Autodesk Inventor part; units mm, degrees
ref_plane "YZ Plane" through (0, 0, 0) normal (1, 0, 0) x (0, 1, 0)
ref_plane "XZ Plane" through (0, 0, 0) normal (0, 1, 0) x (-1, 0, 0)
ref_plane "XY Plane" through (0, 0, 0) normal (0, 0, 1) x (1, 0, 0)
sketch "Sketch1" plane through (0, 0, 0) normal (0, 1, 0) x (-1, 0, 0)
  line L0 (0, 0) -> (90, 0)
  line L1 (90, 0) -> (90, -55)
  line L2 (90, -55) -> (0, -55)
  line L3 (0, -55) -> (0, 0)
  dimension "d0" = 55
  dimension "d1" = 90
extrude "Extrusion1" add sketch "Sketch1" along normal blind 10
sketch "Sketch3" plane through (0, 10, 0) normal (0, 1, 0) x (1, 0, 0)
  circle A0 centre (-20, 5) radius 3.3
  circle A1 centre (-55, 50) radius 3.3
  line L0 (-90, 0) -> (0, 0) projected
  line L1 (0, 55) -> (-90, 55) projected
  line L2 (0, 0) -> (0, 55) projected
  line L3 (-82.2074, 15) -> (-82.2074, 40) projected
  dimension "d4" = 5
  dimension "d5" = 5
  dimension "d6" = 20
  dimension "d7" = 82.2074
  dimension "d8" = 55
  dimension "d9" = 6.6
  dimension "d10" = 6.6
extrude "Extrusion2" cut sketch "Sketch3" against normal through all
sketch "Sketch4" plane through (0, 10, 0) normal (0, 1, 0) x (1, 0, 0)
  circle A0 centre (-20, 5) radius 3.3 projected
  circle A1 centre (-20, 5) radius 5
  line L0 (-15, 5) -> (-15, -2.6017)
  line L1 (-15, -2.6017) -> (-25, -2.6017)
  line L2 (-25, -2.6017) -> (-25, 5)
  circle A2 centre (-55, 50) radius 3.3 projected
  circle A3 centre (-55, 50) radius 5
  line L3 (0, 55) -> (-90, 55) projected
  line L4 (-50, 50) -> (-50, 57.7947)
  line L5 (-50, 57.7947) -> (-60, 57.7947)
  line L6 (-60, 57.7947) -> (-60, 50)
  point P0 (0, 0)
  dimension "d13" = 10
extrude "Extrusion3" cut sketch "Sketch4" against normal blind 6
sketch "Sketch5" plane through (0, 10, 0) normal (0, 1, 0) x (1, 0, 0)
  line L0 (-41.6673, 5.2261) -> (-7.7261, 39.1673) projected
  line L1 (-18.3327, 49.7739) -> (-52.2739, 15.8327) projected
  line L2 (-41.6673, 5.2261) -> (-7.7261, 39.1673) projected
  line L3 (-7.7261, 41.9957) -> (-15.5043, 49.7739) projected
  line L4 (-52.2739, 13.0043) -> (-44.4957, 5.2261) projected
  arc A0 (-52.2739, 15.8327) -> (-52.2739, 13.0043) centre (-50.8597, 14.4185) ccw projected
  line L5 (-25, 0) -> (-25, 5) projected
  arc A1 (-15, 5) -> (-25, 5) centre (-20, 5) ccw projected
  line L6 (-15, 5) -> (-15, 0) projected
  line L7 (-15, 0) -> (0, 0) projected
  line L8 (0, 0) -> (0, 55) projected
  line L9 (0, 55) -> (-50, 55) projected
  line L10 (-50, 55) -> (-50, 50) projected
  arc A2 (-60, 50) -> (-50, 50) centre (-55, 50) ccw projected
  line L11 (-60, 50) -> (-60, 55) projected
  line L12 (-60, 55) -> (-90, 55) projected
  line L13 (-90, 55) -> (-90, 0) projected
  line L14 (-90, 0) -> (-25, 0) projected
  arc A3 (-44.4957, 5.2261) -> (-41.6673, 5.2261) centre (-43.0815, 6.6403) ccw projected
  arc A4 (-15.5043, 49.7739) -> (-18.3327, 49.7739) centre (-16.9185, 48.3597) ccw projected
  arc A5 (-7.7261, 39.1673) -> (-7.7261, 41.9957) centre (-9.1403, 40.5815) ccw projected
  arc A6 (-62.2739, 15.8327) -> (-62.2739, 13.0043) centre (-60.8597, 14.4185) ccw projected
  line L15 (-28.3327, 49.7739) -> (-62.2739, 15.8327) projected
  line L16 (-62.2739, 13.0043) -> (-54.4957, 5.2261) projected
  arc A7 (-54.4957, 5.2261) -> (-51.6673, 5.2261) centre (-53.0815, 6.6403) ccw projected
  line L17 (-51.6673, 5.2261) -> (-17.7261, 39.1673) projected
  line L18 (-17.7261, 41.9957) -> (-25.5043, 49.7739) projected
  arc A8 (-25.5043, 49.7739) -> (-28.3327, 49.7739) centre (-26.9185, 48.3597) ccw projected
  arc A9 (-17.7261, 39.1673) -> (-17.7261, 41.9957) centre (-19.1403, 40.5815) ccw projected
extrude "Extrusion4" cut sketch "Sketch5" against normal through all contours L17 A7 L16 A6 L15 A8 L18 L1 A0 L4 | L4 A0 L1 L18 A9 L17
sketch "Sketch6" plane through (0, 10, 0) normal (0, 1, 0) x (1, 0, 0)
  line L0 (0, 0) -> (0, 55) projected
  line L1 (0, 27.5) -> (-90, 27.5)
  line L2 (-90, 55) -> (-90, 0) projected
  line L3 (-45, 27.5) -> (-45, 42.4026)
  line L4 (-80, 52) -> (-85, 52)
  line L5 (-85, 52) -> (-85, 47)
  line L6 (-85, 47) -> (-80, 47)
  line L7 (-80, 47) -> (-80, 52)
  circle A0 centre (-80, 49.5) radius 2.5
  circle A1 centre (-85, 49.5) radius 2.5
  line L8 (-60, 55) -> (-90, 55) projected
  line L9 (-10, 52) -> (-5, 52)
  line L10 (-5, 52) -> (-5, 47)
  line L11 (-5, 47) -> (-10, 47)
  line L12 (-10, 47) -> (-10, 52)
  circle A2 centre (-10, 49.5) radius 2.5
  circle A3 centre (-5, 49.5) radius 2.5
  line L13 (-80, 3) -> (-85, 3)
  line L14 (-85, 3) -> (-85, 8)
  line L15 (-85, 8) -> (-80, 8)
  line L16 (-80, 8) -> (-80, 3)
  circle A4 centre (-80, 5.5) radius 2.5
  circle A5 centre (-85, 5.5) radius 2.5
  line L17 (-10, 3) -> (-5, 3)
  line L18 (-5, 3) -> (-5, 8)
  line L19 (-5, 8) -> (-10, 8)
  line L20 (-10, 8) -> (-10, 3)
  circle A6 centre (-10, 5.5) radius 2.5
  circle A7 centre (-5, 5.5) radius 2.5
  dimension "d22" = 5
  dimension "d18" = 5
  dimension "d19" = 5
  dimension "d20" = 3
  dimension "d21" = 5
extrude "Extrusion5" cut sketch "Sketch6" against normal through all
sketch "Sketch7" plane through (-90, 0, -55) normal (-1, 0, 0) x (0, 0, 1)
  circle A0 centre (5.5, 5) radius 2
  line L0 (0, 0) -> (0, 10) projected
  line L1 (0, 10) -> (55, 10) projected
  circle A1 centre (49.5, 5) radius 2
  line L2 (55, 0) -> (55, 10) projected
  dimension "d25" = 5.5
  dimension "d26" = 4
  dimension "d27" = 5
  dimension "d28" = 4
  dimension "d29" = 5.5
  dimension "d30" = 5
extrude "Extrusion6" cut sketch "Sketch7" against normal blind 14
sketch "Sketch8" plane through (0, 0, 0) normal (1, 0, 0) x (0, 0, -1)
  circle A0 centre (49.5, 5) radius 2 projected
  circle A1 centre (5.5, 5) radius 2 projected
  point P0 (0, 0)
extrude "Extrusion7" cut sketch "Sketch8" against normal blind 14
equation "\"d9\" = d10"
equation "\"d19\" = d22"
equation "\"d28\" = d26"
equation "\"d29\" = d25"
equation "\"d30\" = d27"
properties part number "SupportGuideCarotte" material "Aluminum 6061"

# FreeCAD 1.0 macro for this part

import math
import FreeCAD as App
import Part
import Sketcher
from FreeCAD import Vector
Q = App.Units.Quantity

doc = App.newDocument("Part")
body = doc.addObject("PartDesign::Body", "Body")

# Sketch on XZ plane
sketch1 = doc.addObject("Sketcher::SketchObject", "Sketch")
body.addObject(sketch1)
sketch1.AttachmentSupport = (doc.XZ_Plane, [""])
sketch1.MapMode = "FlatFace"
sketch1.addGeometry(Part.LineSegment(Vector(-90, 0, 0), Vector(0, 0, 0)), False)
sketch1.addGeometry(Part.LineSegment(Vector(0, 0, 0), Vector(0, -55, 0)), False)
sketch1.addGeometry(Part.LineSegment(Vector(0, -55, 0), Vector(-90, -55, 0)), False)
sketch1.addGeometry(Part.LineSegment(Vector(-90, -55, 0), Vector(-90, 0, 0)), False)
sketch1.addConstraint(Sketcher.Constraint("Coincident", 0, 2, 1, 1))
sketch1.addConstraint(Sketcher.Constraint("Coincident", 1, 2, 2, 1))
sketch1.addConstraint(Sketcher.Constraint("Coincident", 2, 2, 3, 1))
sketch1.addConstraint(Sketcher.Constraint("Coincident", 3, 2, 0, 1))
sketch1.addConstraint(Sketcher.Constraint("Horizontal", 0))
sketch1.addConstraint(Sketcher.Constraint("Vertical", 1))
sketch1.addConstraint(Sketcher.Constraint("Horizontal", 2))
sketch1.addConstraint(Sketcher.Constraint("Vertical", 3))
sketch1.addConstraint(Sketcher.Constraint("Coincident", 0, 2, -1, 1))
sketch1.addConstraint(Sketcher.Constraint("DistanceX", 0, 1, 0, 2, Q("90 mm")))
sketch1.addConstraint(Sketcher.Constraint("DistanceY", 1, 2, 1, 1, Q("55 mm")))
pad1 = doc.addObject("PartDesign::Pad", "Pad")
body.addObject(pad1)
pad1.Profile = sketch1
pad1.Length = 10
pad1.Reversed = True

# Sketch on XZ plane
sketch2 = doc.addObject("Sketcher::SketchObject", "Sketch001")
body.addObject(sketch2)
sketch2.AttachmentSupport = (doc.XZ_Plane, [""])
sketch2.MapMode = "FlatFace"
sketch2.AttachmentOffset = App.Placement(Vector(0, 0, -10), App.Rotation())
sketch2.addGeometry(Part.Circle(Vector(-20, -5, 0), Vector(0, 0, 1), 3.3), False)
sketch2.addGeometry(Part.Circle(Vector(-55, -50, 0), Vector(0, 0, 1), 3.3), False)
sketch2.addConstraint(Sketcher.Constraint("Equal", 0, 1))
sketch2.addConstraint(Sketcher.Constraint("Diameter", 0, Q("6.6 mm")))
sketch2.addConstraint(Sketcher.Constraint("DistanceX", 0, 3, -1, 1, Q("20 mm")))
sketch2.addConstraint(Sketcher.Constraint("DistanceY", 0, 3, -1, 1, Q("5 mm")))
sketch2.addConstraint(Sketcher.Constraint("DistanceX", 1, 3, -1, 1, Q("55 mm")))
sketch2.addConstraint(Sketcher.Constraint("DistanceY", 1, 3, -1, 1, Q("50 mm")))
pocket1 = doc.addObject("PartDesign::Pocket", "Pocket")
body.addObject(pocket1)
pocket1.Profile = sketch2
pocket1.Type = "ThroughAll"
pocket1.Reversed = True

# Sketch on XZ plane
sketch3 = doc.addObject("Sketcher::SketchObject", "Sketch002")
body.addObject(sketch3)
sketch3.AttachmentSupport = (doc.XZ_Plane, [""])
sketch3.MapMode = "FlatFace"
sketch3.AttachmentOffset = App.Placement(Vector(0, 0, -10), App.Rotation())
sketch3.addGeometry(Part.ArcOfCircle(Part.Circle(Vector(-20, -5, 0), Vector(0, 0, 1), 5), math.radians(180), math.radians(360)), False)
sketch3.addGeometry(Part.LineSegment(Vector(-25, -5, 0), Vector(-25, 2.6017, 0)), False)
sketch3.addGeometry(Part.LineSegment(Vector(-25, 2.6017, 0), Vector(-15, 2.6017, 0)), False)
sketch3.addGeometry(Part.LineSegment(Vector(-15, 2.6017, 0), Vector(-15, -5, 0)), False)
sketch3.addGeometry(Part.Circle(Vector(-20, -5, 0), Vector(0, 0, 1), 3.3), False)
sketch3.addGeometry(Part.ArcOfCircle(Part.Circle(Vector(-55, -50, 0), Vector(0, 0, 1), 5), math.radians(0), math.radians(180)), False)
sketch3.addGeometry(Part.LineSegment(Vector(-50, -50, 0), Vector(-50, -57.7947, 0)), False)
sketch3.addGeometry(Part.LineSegment(Vector(-50, -57.7947, 0), Vector(-60, -57.7947, 0)), False)
sketch3.addGeometry(Part.LineSegment(Vector(-60, -57.7947, 0), Vector(-60, -50, 0)), False)
sketch3.addGeometry(Part.Circle(Vector(-55, -50, 0), Vector(0, 0, 1), 3.3), False)
sketch3.addConstraint(Sketcher.Constraint("Tangent", 0, 1, 1, 1))
sketch3.addConstraint(Sketcher.Constraint("Coincident", 1, 2, 2, 1))
sketch3.addConstraint(Sketcher.Constraint("Coincident", 2, 2, 3, 1))
sketch3.addConstraint(Sketcher.Constraint("Tangent", 3, 2, 0, 2))
sketch3.addConstraint(Sketcher.Constraint("Tangent", 5, 1, 6, 1))
sketch3.addConstraint(Sketcher.Constraint("Coincident", 6, 2, 7, 1))
sketch3.addConstraint(Sketcher.Constraint("Coincident", 7, 2, 8, 1))
sketch3.addConstraint(Sketcher.Constraint("Tangent", 8, 2, 5, 2))
sketch3.addConstraint(Sketcher.Constraint("Vertical", 1))
sketch3.addConstraint(Sketcher.Constraint("Horizontal", 2))
sketch3.addConstraint(Sketcher.Constraint("Vertical", 3))
sketch3.addConstraint(Sketcher.Constraint("Vertical", 6))
sketch3.addConstraint(Sketcher.Constraint("Horizontal", 7))
sketch3.addConstraint(Sketcher.Constraint("Vertical", 8))
sketch3.addConstraint(Sketcher.Constraint("Coincident", 4, 3, 0, 3))
sketch3.addConstraint(Sketcher.Constraint("Coincident", 9, 3, 5, 3))
sketch3.addConstraint(Sketcher.Constraint("Equal", 0, 5))
sketch3.addConstraint(Sketcher.Constraint("Equal", 4, 9))
sketch3.addConstraint(Sketcher.Constraint("Radius", 0, Q("5 mm")))
sketch3.addConstraint(Sketcher.Constraint("Diameter", 4, Q("6.6 mm")))
sketch3.addConstraint(Sketcher.Constraint("DistanceX", 0, 3, -1, 1, Q("20 mm")))
sketch3.addConstraint(Sketcher.Constraint("DistanceY", 0, 3, -1, 1, Q("5 mm")))
sketch3.addConstraint(Sketcher.Constraint("DistanceX", 5, 3, -1, 1, Q("55 mm")))
sketch3.addConstraint(Sketcher.Constraint("DistanceY", 5, 3, -1, 1, Q("50 mm")))
sketch3.addConstraint(Sketcher.Constraint("DistanceY", 1, 1, 1, 2, Q("7.6017 mm")))
sketch3.addConstraint(Sketcher.Constraint("DistanceY", 6, 2, 6, 1, Q("7.7947 mm")))
pocket2 = doc.addObject("PartDesign::Pocket", "Pocket001")
body.addObject(pocket2)
pocket2.Profile = sketch3
pocket2.Length = 6
pocket2.Reversed = True

# Sketch on XZ plane
sketch4 = doc.addObject("Sketcher::SketchObject", "Sketch003")
body.addObject(sketch4)
sketch4.AttachmentSupport = (doc.XZ_Plane, [""])
sketch4.MapMode = "FlatFace"
sketch4.AttachmentOffset = App.Placement(Vector(0, 0, -10), App.Rotation())
sketch4.addGeometry(Part.LineSegment(Vector(-51.6673, -5.2261, 0), Vector(-17.7261, -39.1673, 0)), False)
sketch4.addGeometry(Part.ArcOfCircle(Part.Circle(Vector(-19.1403, -40.5815, 0), Vector(0, 0, 1), 1.999981), math.radians(-45), math.radians(45)), False)
sketch4.addGeometry(Part.LineSegment(Vector(-17.7261, -41.9957, 0), Vector(-25.5043, -49.7739, 0)), False)
sketch4.addGeometry(Part.ArcOfCircle(Part.Circle(Vector(-26.9185, -48.3597, 0), Vector(0, 0, 1), 1.999981), math.radians(-135), math.radians(-45)), False)
sketch4.addGeometry(Part.LineSegment(Vector(-28.3327, -49.7739, 0), Vector(-62.2739, -15.8327, 0)), False)
sketch4.addGeometry(Part.ArcOfCircle(Part.Circle(Vector(-60.8597, -14.4185, 0), Vector(0, 0, 1), 1.999981), math.radians(135), math.radians(225)), False)
sketch4.addGeometry(Part.LineSegment(Vector(-62.2739, -13.0043, 0), Vector(-54.4957, -5.2261, 0)), False)
sketch4.addGeometry(Part.ArcOfCircle(Part.Circle(Vector(-53.0815, -6.6403, 0), Vector(0, 0, 1), 1.999981), math.radians(45), math.radians(135)), False)
sketch4.addConstraint(Sketcher.Constraint("Tangent", 0, 2, 1, 2))
sketch4.addConstraint(Sketcher.Constraint("Tangent", 1, 1, 2, 1))
sketch4.addConstraint(Sketcher.Constraint("Tangent", 2, 2, 3, 2))
sketch4.addConstraint(Sketcher.Constraint("Tangent", 3, 1, 4, 1))
sketch4.addConstraint(Sketcher.Constraint("Tangent", 4, 2, 5, 2))
sketch4.addConstraint(Sketcher.Constraint("Tangent", 5, 1, 6, 1))
sketch4.addConstraint(Sketcher.Constraint("Tangent", 6, 2, 7, 2))
sketch4.addConstraint(Sketcher.Constraint("Tangent", 7, 1, 0, 1))
sketch4.addConstraint(Sketcher.Constraint("Equal", 1, 3))
sketch4.addConstraint(Sketcher.Constraint("Equal", 3, 5))
sketch4.addConstraint(Sketcher.Constraint("Equal", 5, 7))
sketch4.addConstraint(Sketcher.Constraint("Perpendicular", 0, 2))
sketch4.addConstraint(Sketcher.Constraint("Perpendicular", 2, 4))
sketch4.addConstraint(Sketcher.Constraint("Perpendicular", 4, 6))
sketch4.addConstraint(Sketcher.Constraint("Horizontal", 2, 2, 3, 1))
sketch4.addConstraint(Sketcher.Constraint("Radius", 1, Q("2 mm")))
sketch4.addConstraint(Sketcher.Constraint("Distance", 0, Q("48 mm")))
sketch4.addConstraint(Sketcher.Constraint("Distance", 2, Q("11 mm")))
sketch4.addConstraint(Sketcher.Constraint("DistanceX", 0, 2, -1, 1, Q("17.726 mm")))
sketch4.addConstraint(Sketcher.Constraint("DistanceY", 2, 2, -1, 1, Q("49.774 mm")))
pocket3 = doc.addObject("PartDesign::Pocket", "Pocket002")
body.addObject(pocket3)
pocket3.Profile = sketch4
pocket3.Type = "ThroughAll"
pocket3.Reversed = True

# Sketch on XZ plane
sketch5 = doc.addObject("Sketcher::SketchObject", "Sketch004")
body.addObject(sketch5)
sketch5.AttachmentSupport = (doc.XZ_Plane, [""])
sketch5.MapMode = "FlatFace"
sketch5.AttachmentOffset = App.Placement(Vector(0, 0, -10), App.Rotation())
sketch5.addGeometry(Part.LineSegment(Vector(-80, -52, 0), Vector(-85, -52, 0)), False)
sketch5.addGeometry(Part.ArcOfCircle(Part.Circle(Vector(-85, -49.5, 0), Vector(0, 0, 1), 2.5), math.radians(90), math.radians(270)), False)
sketch5.addGeometry(Part.LineSegment(Vector(-85, -47, 0), Vector(-80, -47, 0)), False)
sketch5.addGeometry(Part.ArcOfCircle(Part.Circle(Vector(-80, -49.5, 0), Vector(0, 0, 1), 2.5), math.radians(-90), math.radians(90)), False)
sketch5.addGeometry(Part.LineSegment(Vector(-5, -52, 0), Vector(-10, -52, 0)), False)
sketch5.addGeometry(Part.ArcOfCircle(Part.Circle(Vector(-10, -49.5, 0), Vector(0, 0, 1), 2.5), math.radians(90), math.radians(270)), False)
sketch5.addGeometry(Part.LineSegment(Vector(-10, -47, 0), Vector(-5, -47, 0)), False)
sketch5.addGeometry(Part.ArcOfCircle(Part.Circle(Vector(-5, -49.5, 0), Vector(0, 0, 1), 2.5), math.radians(-90), math.radians(90)), False)
sketch5.addGeometry(Part.LineSegment(Vector(-85, -3, 0), Vector(-80, -3, 0)), False)
sketch5.addGeometry(Part.ArcOfCircle(Part.Circle(Vector(-80, -5.5, 0), Vector(0, 0, 1), 2.5), math.radians(-90), math.radians(90)), False)
sketch5.addGeometry(Part.LineSegment(Vector(-80, -8, 0), Vector(-85, -8, 0)), False)
sketch5.addGeometry(Part.ArcOfCircle(Part.Circle(Vector(-85, -5.5, 0), Vector(0, 0, 1), 2.5), math.radians(90), math.radians(270)), False)
sketch5.addGeometry(Part.LineSegment(Vector(-10, -3, 0), Vector(-5, -3, 0)), False)
sketch5.addGeometry(Part.ArcOfCircle(Part.Circle(Vector(-5, -5.5, 0), Vector(0, 0, 1), 2.5), math.radians(-90), math.radians(90)), False)
sketch5.addGeometry(Part.LineSegment(Vector(-5, -8, 0), Vector(-10, -8, 0)), False)
sketch5.addGeometry(Part.ArcOfCircle(Part.Circle(Vector(-10, -5.5, 0), Vector(0, 0, 1), 2.5), math.radians(90), math.radians(270)), False)
sketch5.addConstraint(Sketcher.Constraint("Tangent", 0, 2, 1, 2))
sketch5.addConstraint(Sketcher.Constraint("Tangent", 1, 1, 2, 1))
sketch5.addConstraint(Sketcher.Constraint("Tangent", 2, 2, 3, 2))
sketch5.addConstraint(Sketcher.Constraint("Tangent", 3, 1, 0, 1))
sketch5.addConstraint(Sketcher.Constraint("Tangent", 4, 2, 5, 2))
sketch5.addConstraint(Sketcher.Constraint("Tangent", 5, 1, 6, 1))
sketch5.addConstraint(Sketcher.Constraint("Tangent", 6, 2, 7, 2))
sketch5.addConstraint(Sketcher.Constraint("Tangent", 7, 1, 4, 1))
sketch5.addConstraint(Sketcher.Constraint("Tangent", 8, 2, 9, 2))
sketch5.addConstraint(Sketcher.Constraint("Tangent", 9, 1, 10, 1))
sketch5.addConstraint(Sketcher.Constraint("Tangent", 10, 2, 11, 2))
sketch5.addConstraint(Sketcher.Constraint("Tangent", 11, 1, 8, 1))
sketch5.addConstraint(Sketcher.Constraint("Tangent", 12, 2, 13, 2))
sketch5.addConstraint(Sketcher.Constraint("Tangent", 13, 1, 14, 1))
sketch5.addConstraint(Sketcher.Constraint("Tangent", 14, 2, 15, 2))
sketch5.addConstraint(Sketcher.Constraint("Tangent", 15, 1, 12, 1))
sketch5.addConstraint(Sketcher.Constraint("Horizontal", 0))
sketch5.addConstraint(Sketcher.Constraint("Horizontal", 2))
sketch5.addConstraint(Sketcher.Constraint("Horizontal", 4))
sketch5.addConstraint(Sketcher.Constraint("Horizontal", 6))
sketch5.addConstraint(Sketcher.Constraint("Horizontal", 8))
sketch5.addConstraint(Sketcher.Constraint("Horizontal", 10))
sketch5.addConstraint(Sketcher.Constraint("Horizontal", 12))
sketch5.addConstraint(Sketcher.Constraint("Horizontal", 14))
sketch5.addConstraint(Sketcher.Constraint("Equal", 3, 5))
sketch5.addConstraint(Sketcher.Constraint("Equal", 7, 9))
sketch5.addConstraint(Sketcher.Constraint("Equal", 11, 13))
sketch5.addConstraint(Sketcher.Constraint("Horizontal", 3, 3, 5, 3))
sketch5.addConstraint(Sketcher.Constraint("Horizontal", 11, 3, 13, 3))
sketch5.addConstraint(Sketcher.Constraint("Vertical", 3, 3, 9, 3))
sketch5.addConstraint(Sketcher.Constraint("Vertical", 1, 3, 11, 3))
sketch5.addConstraint(Sketcher.Constraint("Vertical", 7, 3, 13, 3))
sketch5.addConstraint(Sketcher.Constraint("Vertical", 5, 3, 15, 3))
sketch5.addConstraint(Sketcher.Constraint("Equal", 2, 4))
sketch5.addConstraint(Sketcher.Constraint("Radius", 1, Q("2.5 mm")))
sketch5.addConstraint(Sketcher.Constraint("DistanceX", 0, 2, 0, 1, Q("5 mm")))
sketch5.addConstraint(Sketcher.Constraint("DistanceX", 7, 3, -1, 1, Q("5 mm")))
sketch5.addConstraint(Sketcher.Constraint("DistanceY", 8, 2, -1, 1, Q("3 mm")))
sketch5.addConstraint(Sketcher.Constraint("DistanceX", 1, 3, -1, 1, Q("85 mm")))
sketch5.addConstraint(Sketcher.Constraint("DistanceY", 0, 2, -1, 1, Q("52 mm")))
pocket4 = doc.addObject("PartDesign::Pocket", "Pocket003")
body.addObject(pocket4)
pocket4.Profile = sketch5
pocket4.Type = "ThroughAll"
pocket4.Reversed = True

# Sketch on YZ plane
sketch6 = doc.addObject("Sketcher::SketchObject", "Sketch005")
body.addObject(sketch6)
sketch6.AttachmentSupport = (doc.YZ_Plane, [""])
sketch6.MapMode = "FlatFace"
sketch6.AttachmentOffset = App.Placement(Vector(0, 0, -90), App.Rotation())
sketch6.addGeometry(Part.Circle(Vector(5, -49.5, 0), Vector(0, 0, 1), 2), False)
sketch6.addGeometry(Part.Circle(Vector(5, -5.5, 0), Vector(0, 0, 1), 2), False)
sketch6.addConstraint(Sketcher.Constraint("Equal", 0, 1))
sketch6.addConstraint(Sketcher.Constraint("Vertical", 0, 3, 1, 3))
sketch6.addConstraint(Sketcher.Constraint("Diameter", 0, Q("4 mm")))
sketch6.addConstraint(Sketcher.Constraint("DistanceX", -1, 1, 0, 3, Q("5 mm")))
sketch6.addConstraint(Sketcher.Constraint("DistanceY", 1, 3, -1, 1, Q("5.5 mm")))
sketch6.addConstraint(Sketcher.Constraint("DistanceY", 0, 3, 1, 3, Q("44 mm")))
pocket5 = doc.addObject("PartDesign::Pocket", "Pocket004")
body.addObject(pocket5)
pocket5.Profile = sketch6
pocket5.Length = 14
pocket5.Reversed = True

# Sketch on YZ plane
sketch7 = doc.addObject("Sketcher::SketchObject", "Sketch006")
body.addObject(sketch7)
sketch7.AttachmentSupport = (doc.YZ_Plane, [""])
sketch7.MapMode = "FlatFace"
sketch7.addGeometry(Part.Circle(Vector(5, -49.5, 0), Vector(0, 0, 1), 2), False)
sketch7.addGeometry(Part.Circle(Vector(5, -5.5, 0), Vector(0, 0, 1), 2), False)
sketch7.addConstraint(Sketcher.Constraint("Equal", 0, 1))
sketch7.addConstraint(Sketcher.Constraint("Vertical", 0, 3, 1, 3))
sketch7.addConstraint(Sketcher.Constraint("Diameter", 0, Q("4 mm")))
sketch7.addConstraint(Sketcher.Constraint("DistanceX", -1, 1, 0, 3, Q("5 mm")))
sketch7.addConstraint(Sketcher.Constraint("DistanceY", 0, 3, 1, 3, Q("44 mm")))
sketch7.addConstraint(Sketcher.Constraint("DistanceY", 0, 3, -1, 1, Q("49.5 mm")))
pocket6 = doc.addObject("PartDesign::Pocket", "Pocket005")
body.addObject(pocket6)
pocket6.Profile = sketch7
pocket6.Length = 14

doc.recompute()
